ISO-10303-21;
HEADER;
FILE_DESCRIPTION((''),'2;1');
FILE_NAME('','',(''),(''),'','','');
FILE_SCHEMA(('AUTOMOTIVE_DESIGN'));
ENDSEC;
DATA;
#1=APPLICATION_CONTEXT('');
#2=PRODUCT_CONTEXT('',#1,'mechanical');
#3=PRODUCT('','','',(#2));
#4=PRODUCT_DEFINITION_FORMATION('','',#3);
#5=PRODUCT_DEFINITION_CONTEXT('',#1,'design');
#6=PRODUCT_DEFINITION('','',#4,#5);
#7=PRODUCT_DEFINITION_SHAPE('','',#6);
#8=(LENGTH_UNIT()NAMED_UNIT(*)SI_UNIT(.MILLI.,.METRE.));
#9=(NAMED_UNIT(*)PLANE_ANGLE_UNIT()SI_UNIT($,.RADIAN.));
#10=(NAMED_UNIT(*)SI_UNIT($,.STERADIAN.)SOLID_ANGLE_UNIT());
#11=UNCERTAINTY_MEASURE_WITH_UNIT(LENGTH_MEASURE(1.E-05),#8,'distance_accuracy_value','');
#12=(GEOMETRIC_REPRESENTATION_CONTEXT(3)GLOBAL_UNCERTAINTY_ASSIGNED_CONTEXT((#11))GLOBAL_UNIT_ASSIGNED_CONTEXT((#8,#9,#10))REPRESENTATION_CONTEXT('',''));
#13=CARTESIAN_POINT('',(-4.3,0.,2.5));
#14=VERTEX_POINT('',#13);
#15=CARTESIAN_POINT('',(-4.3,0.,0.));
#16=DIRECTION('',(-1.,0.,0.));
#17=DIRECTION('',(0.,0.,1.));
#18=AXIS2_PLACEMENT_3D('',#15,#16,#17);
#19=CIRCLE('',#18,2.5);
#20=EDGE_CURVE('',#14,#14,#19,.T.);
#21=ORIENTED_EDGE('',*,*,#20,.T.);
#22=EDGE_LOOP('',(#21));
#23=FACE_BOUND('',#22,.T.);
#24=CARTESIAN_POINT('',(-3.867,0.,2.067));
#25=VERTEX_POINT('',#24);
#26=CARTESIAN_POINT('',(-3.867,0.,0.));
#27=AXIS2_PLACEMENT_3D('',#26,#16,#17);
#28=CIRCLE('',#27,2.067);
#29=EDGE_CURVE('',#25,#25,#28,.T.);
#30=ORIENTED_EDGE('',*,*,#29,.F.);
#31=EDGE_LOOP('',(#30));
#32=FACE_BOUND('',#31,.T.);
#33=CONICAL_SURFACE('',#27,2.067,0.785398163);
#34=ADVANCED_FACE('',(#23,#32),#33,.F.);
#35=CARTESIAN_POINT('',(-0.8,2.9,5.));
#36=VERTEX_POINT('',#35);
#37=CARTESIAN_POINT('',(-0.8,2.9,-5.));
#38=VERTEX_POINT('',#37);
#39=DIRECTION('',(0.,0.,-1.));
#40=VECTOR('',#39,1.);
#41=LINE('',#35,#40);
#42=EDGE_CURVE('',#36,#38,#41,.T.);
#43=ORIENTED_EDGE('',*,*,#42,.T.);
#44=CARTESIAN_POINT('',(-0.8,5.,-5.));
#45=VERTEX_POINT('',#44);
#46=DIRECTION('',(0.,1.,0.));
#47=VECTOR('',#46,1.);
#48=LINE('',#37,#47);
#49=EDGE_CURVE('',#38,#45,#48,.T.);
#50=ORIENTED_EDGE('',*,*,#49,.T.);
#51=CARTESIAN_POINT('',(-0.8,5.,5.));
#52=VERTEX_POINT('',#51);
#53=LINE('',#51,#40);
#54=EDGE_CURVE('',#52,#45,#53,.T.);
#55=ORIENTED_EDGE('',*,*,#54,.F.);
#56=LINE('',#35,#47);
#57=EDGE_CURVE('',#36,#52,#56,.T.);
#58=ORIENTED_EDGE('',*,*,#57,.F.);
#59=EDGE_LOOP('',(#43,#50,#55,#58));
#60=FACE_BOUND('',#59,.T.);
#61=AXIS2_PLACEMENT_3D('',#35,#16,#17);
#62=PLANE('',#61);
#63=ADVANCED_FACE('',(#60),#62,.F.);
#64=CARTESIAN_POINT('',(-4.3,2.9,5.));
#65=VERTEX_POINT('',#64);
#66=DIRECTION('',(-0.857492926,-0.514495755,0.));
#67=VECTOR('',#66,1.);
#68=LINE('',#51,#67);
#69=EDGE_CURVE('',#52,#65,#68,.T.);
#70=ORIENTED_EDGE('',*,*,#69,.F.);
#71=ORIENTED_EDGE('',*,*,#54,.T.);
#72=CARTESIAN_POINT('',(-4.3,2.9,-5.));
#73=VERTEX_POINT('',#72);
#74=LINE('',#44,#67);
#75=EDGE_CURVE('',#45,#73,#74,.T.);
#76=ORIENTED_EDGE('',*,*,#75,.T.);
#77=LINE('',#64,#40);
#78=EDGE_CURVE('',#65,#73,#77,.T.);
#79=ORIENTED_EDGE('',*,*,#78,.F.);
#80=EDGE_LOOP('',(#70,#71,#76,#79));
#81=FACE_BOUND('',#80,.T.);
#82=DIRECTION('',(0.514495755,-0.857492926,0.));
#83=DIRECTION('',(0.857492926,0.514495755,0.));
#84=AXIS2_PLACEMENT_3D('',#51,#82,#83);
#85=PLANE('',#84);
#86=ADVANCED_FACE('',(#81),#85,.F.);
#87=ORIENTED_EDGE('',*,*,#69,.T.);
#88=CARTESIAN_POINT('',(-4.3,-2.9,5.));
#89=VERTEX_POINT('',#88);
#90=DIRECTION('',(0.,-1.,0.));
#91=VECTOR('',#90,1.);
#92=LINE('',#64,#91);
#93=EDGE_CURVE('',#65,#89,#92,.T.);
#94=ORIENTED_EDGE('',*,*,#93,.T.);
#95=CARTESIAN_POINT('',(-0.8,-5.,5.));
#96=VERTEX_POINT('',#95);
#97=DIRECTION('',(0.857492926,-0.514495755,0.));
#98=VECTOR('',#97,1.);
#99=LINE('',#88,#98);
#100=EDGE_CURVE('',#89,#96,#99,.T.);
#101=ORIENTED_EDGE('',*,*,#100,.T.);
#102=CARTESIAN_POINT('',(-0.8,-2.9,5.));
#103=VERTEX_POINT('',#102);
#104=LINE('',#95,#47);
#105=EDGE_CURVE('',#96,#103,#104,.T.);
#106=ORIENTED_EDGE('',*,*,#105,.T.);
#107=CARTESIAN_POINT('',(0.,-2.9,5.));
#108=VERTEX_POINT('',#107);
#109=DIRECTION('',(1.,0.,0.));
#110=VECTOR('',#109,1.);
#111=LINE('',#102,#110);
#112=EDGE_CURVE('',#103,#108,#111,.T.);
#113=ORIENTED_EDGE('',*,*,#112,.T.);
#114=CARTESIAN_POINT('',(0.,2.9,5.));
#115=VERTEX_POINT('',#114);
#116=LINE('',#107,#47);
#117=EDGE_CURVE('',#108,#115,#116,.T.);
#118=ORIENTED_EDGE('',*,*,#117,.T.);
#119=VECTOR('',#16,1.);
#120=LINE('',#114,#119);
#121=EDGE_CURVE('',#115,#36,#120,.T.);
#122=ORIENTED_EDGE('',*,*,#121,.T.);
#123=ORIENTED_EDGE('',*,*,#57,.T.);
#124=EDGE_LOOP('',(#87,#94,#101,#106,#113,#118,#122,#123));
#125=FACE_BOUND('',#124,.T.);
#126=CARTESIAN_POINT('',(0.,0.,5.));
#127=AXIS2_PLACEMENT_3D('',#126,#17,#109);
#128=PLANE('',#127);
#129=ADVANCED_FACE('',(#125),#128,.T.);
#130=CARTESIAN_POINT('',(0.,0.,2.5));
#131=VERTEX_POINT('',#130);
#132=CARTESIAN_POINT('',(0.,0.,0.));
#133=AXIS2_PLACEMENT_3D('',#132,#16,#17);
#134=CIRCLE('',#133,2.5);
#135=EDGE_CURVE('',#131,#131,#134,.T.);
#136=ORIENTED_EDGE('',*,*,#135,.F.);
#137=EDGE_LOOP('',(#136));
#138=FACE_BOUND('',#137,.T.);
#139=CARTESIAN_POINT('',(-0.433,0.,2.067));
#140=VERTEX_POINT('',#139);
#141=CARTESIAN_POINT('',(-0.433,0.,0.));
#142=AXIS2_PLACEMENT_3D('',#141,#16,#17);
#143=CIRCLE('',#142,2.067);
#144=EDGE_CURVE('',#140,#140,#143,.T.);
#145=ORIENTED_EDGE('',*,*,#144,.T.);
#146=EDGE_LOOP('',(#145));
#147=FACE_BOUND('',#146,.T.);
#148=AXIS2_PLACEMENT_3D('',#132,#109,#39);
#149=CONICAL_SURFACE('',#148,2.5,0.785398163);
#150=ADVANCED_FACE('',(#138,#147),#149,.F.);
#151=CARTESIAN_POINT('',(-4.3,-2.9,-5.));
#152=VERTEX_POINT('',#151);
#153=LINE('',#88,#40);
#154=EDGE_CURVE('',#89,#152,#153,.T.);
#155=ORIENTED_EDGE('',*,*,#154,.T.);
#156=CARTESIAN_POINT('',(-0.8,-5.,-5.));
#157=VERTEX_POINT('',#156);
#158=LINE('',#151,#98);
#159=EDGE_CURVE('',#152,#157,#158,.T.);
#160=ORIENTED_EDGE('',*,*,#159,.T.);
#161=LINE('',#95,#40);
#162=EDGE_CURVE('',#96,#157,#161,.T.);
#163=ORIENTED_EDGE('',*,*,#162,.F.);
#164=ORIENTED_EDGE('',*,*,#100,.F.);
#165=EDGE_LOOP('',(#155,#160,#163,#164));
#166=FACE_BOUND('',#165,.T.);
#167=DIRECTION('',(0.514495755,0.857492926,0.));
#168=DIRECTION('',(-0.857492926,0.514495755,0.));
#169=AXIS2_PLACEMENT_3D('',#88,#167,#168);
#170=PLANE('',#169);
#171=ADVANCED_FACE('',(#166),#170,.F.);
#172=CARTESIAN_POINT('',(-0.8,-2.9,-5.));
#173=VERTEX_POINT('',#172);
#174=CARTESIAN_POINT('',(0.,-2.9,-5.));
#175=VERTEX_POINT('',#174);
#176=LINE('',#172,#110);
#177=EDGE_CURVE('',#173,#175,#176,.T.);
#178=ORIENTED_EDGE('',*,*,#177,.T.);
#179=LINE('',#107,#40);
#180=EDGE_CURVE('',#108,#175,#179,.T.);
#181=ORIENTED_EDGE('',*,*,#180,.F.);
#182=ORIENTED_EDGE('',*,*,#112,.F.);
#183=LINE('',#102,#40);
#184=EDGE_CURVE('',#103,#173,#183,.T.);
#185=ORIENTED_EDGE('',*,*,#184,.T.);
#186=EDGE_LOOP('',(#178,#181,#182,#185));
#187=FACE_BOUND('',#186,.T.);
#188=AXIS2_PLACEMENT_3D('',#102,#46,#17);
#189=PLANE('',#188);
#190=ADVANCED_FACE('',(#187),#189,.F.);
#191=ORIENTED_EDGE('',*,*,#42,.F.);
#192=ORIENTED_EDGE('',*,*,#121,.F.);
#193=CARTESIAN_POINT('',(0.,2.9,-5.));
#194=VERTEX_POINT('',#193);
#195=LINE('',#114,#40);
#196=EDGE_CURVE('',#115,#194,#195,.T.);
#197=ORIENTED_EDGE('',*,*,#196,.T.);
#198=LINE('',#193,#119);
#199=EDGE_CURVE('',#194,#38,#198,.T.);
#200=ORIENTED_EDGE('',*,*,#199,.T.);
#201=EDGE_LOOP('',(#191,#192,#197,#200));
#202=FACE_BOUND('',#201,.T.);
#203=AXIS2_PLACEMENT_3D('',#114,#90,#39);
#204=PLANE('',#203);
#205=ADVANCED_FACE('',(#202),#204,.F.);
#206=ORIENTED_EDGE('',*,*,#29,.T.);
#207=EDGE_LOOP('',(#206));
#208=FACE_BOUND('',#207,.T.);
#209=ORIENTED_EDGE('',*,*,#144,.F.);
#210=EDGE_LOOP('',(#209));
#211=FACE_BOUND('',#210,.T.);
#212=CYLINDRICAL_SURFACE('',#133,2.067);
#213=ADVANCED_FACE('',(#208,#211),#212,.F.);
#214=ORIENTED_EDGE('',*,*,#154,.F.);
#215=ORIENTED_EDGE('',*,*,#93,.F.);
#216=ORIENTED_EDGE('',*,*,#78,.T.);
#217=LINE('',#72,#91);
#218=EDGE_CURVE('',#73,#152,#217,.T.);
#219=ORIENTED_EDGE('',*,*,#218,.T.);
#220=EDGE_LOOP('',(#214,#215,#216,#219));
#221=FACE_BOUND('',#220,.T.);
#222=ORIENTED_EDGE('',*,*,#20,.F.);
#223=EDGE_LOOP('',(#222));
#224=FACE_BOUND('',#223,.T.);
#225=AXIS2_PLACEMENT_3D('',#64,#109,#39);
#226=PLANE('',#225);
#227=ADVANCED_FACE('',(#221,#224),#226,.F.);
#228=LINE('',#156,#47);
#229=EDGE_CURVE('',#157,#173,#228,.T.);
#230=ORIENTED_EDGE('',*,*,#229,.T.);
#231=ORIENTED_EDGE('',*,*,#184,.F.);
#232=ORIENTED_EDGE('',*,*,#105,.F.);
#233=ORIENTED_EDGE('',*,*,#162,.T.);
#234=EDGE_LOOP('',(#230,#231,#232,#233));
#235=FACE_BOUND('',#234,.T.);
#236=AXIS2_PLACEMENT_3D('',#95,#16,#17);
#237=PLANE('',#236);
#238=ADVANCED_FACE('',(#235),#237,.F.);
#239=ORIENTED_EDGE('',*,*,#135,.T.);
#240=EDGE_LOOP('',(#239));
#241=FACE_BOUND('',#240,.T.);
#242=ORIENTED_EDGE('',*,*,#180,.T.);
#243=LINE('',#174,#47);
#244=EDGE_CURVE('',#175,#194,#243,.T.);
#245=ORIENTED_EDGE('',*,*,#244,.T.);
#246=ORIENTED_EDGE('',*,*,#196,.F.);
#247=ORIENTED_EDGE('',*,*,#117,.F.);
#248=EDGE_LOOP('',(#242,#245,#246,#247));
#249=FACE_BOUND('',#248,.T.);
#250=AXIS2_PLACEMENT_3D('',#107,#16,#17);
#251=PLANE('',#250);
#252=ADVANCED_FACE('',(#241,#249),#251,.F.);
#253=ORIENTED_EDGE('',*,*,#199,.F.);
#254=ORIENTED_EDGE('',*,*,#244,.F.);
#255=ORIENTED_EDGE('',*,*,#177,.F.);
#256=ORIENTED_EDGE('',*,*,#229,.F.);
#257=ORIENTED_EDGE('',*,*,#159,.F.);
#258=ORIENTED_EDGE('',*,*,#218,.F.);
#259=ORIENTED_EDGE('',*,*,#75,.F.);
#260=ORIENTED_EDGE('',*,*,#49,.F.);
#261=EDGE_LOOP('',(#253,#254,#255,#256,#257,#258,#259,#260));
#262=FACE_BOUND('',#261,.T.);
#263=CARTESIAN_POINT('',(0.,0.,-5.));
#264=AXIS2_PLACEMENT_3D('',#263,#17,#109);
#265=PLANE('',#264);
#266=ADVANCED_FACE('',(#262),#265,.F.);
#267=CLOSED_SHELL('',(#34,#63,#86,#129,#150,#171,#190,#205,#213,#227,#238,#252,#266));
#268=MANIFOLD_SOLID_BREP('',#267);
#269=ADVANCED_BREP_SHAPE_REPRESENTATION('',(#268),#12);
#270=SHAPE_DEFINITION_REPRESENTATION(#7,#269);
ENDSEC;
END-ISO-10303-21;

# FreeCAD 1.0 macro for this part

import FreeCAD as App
import Part
import Sketcher

V = App.Vector
Q = App.Units.Quantity

doc = App.newDocument("Part")
body = doc.addObject("PartDesign::Body", "Body")

# Sketch on XY plane
sketch1 = doc.addObject("Sketcher::SketchObject", "Sketch")
body.addObject(sketch1)
sketch1.AttachmentSupport = (doc.XY_Plane, [""])
sketch1.MapMode = "FlatFace"
sketch1.addGeometry(Part.LineSegment(V(-4.3, 2.9, 0), V(-4.3, -2.9, 0)), False)
sketch1.addGeometry(Part.LineSegment(V(-4.3, -2.9, 0), V(-0.8, -5, 0)), False)
sketch1.addGeometry(Part.LineSegment(V(-0.8, -5, 0), V(-0.8, -2.9, 0)), False)
sketch1.addGeometry(Part.LineSegment(V(-0.8, -2.9, 0), V(0, -2.9, 0)), False)
sketch1.addGeometry(Part.LineSegment(V(0, -2.9, 0), V(0, 2.9, 0)), False)
sketch1.addGeometry(Part.LineSegment(V(0, 2.9, 0), V(-0.8, 2.9, 0)), False)
sketch1.addGeometry(Part.LineSegment(V(-0.8, 2.9, 0), V(-0.8, 5, 0)), False)
sketch1.addGeometry(Part.LineSegment(V(-0.8, 5, 0), V(-4.3, 2.9, 0)), False)
sketch1.addConstraint(Sketcher.Constraint("Coincident", 0, 2, 1, 1))
sketch1.addConstraint(Sketcher.Constraint("Coincident", 1, 2, 2, 1))
sketch1.addConstraint(Sketcher.Constraint("Coincident", 2, 2, 3, 1))
sketch1.addConstraint(Sketcher.Constraint("Coincident", 3, 2, 4, 1))
sketch1.addConstraint(Sketcher.Constraint("Coincident", 4, 2, 5, 1))
sketch1.addConstraint(Sketcher.Constraint("Coincident", 5, 2, 6, 1))
sketch1.addConstraint(Sketcher.Constraint("Coincident", 6, 2, 7, 1))
sketch1.addConstraint(Sketcher.Constraint("Coincident", 7, 2, 0, 1))
sketch1.addConstraint(Sketcher.Constraint("Vertical", 0))
sketch1.addConstraint(Sketcher.Constraint("Vertical", 2))
sketch1.addConstraint(Sketcher.Constraint("Horizontal", 3))
sketch1.addConstraint(Sketcher.Constraint("Vertical", 4))
sketch1.addConstraint(Sketcher.Constraint("Horizontal", 5))
sketch1.addConstraint(Sketcher.Constraint("Vertical", 6))
sketch1.addConstraint(Sketcher.Constraint("Symmetric", 3, 2, 4, 2, -1, 1))
sketch1.addConstraint(Sketcher.Constraint("Symmetric", 1, 2, 6, 2, -1))
sketch1.addConstraint(Sketcher.Constraint("Horizontal", 0, 2, 2, 2))
sketch1.addConstraint(Sketcher.Constraint("Horizontal", 5, 2, 7, 2))
sketch1.addConstraint(Sketcher.Constraint("DistanceX", 3, 1, 3, 2, Q("0.8 mm")))
sketch1.addConstraint(Sketcher.Constraint("DistanceY", 0, 2, 0, 1, Q("5.8 mm")))
sketch1.addConstraint(Sketcher.Constraint("DistanceY", 2, 1, 2, 2, Q("2.1 mm")))
sketch1.addConstraint(Sketcher.Constraint("DistanceX", 0, 2, -1, 1, Q("4.3 mm")))
pad1 = doc.addObject("PartDesign::Pad", "Pad")
body.addObject(pad1)
pad1.Profile = sketch1
pad1.Type = "TwoLengths"
pad1.Length = 5
pad1.Length2 = 5

# Sketch on XY plane
sketch2 = doc.addObject("Sketcher::SketchObject", "Sketch001")
body.addObject(sketch2)
sketch2.AttachmentSupport = (doc.XY_Plane, [""])
sketch2.MapMode = "FlatFace"
sketch2.addGeometry(Part.LineSegment(V(-4.3, 2.5, 0), V(-4.3, 0, 0)), False)
sketch2.addGeometry(Part.LineSegment(V(-4.3, 0, 0), V(0, 0, 0)), False)
sketch2.addGeometry(Part.LineSegment(V(0, 0, 0), V(0, 2.5, 0)), False)
sketch2.addGeometry(Part.LineSegment(V(0, 2.5, 0), V(-0.4, 2.1, 0)), False)
sketch2.addGeometry(Part.LineSegment(V(-0.4, 2.1, 0), V(-3.9, 2.1, 0)), False)
sketch2.addGeometry(Part.LineSegment(V(-3.9, 2.1, 0), V(-4.3, 2.5, 0)), False)
sketch2.addConstraint(Sketcher.Constraint("Coincident", 0, 2, 1, 1))
sketch2.addConstraint(Sketcher.Constraint("Coincident", 1, 2, 2, 1))
sketch2.addConstraint(Sketcher.Constraint("Coincident", 2, 2, 3, 1))
sketch2.addConstraint(Sketcher.Constraint("Coincident", 3, 2, 4, 1))
sketch2.addConstraint(Sketcher.Constraint("Coincident", 4, 2, 5, 1))
sketch2.addConstraint(Sketcher.Constraint("Coincident", 5, 2, 0, 1))
sketch2.addConstraint(Sketcher.Constraint("Vertical", 0))
sketch2.addConstraint(Sketcher.Constraint("Horizontal", 1))
sketch2.addConstraint(Sketcher.Constraint("Vertical", 2))
sketch2.addConstraint(Sketcher.Constraint("Horizontal", 4))
sketch2.addConstraint(Sketcher.Constraint("Coincident", 1, 2, -1, 1))
sketch2.addConstraint(Sketcher.Constraint("Perpendicular", 3, 5))
sketch2.addConstraint(Sketcher.Constraint("Horizontal", 2, 2, 5, 2))
sketch2.addConstraint(Sketcher.Constraint("Equal", 3, 5))
sketch2.addConstraint(Sketcher.Constraint("DistanceX", 1, 1, 1, 2, Q("4.3 mm")))
sketch2.addConstraint(Sketcher.Constraint("DistanceY", 0, 2, 0, 1, Q("2.5 mm")))
sketch2.addConstraint(Sketcher.Constraint("DistanceX", 4, 2, 4, 1, Q("3.434 mm")))
groove = doc.addObject("PartDesign::Groove", "Groove")
body.addObject(groove)
groove.Profile = sketch2
groove.ReferenceAxis = (sketch2, ["H_Axis"])
groove.Angle = 360

doc.recompute()
